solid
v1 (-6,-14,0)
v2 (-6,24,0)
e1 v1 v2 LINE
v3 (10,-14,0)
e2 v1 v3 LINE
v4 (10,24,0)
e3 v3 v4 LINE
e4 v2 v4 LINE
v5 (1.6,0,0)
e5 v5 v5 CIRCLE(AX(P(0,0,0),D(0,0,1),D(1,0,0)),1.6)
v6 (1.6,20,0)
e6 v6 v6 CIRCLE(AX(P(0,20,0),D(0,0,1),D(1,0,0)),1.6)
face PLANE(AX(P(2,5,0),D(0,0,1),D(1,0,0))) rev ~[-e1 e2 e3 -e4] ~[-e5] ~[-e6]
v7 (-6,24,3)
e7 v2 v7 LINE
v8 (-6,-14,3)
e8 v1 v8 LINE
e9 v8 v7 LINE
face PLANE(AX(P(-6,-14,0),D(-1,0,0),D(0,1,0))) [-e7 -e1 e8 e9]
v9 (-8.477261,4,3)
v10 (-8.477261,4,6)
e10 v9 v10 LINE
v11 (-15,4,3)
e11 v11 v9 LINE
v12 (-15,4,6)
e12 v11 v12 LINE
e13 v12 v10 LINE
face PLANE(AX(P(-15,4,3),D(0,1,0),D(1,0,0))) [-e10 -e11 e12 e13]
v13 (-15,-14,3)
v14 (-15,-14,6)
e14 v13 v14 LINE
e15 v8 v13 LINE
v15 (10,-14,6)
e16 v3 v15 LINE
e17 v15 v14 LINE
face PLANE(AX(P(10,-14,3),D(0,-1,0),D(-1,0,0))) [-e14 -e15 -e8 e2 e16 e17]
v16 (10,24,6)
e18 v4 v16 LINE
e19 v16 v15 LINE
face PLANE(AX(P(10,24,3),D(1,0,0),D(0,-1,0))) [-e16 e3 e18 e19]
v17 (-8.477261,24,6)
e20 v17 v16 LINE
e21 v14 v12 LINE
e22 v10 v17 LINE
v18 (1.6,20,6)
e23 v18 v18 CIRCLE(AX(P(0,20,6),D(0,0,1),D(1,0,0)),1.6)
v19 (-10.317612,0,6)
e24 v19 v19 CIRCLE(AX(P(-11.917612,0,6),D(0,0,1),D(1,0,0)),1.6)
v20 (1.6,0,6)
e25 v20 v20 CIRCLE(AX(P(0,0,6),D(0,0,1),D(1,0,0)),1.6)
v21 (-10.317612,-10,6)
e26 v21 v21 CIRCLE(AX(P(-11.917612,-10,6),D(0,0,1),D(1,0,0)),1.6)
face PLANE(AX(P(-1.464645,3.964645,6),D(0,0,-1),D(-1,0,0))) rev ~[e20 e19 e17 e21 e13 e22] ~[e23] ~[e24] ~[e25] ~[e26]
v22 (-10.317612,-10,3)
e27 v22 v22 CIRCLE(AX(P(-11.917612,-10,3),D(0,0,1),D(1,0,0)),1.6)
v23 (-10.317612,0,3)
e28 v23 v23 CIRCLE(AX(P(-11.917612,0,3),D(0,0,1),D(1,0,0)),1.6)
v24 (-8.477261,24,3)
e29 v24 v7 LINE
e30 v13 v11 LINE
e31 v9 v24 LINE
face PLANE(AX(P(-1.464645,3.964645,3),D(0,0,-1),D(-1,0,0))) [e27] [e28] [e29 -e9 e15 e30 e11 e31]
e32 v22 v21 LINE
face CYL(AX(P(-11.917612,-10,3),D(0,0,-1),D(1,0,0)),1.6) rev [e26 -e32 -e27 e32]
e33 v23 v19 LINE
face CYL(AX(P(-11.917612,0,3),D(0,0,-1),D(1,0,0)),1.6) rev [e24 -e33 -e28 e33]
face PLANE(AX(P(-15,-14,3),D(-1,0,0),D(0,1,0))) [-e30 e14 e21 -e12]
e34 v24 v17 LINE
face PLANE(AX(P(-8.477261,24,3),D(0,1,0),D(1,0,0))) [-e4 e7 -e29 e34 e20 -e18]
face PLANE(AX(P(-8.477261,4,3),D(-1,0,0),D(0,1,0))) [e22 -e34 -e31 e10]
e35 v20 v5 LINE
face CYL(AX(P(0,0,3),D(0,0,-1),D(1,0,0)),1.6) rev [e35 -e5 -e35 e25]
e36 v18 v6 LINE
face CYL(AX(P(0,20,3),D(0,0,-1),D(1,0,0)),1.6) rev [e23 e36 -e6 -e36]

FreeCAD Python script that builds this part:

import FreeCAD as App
import Part
import Sketcher
from FreeCAD import Vector
Q = App.Units.Quantity


def add_polygon(sketch, points):
    """Adds a closed chain of lines whose ends are joined by coincident constraints."""
    first, n = sketch.GeometryCount, len(points)
    for a, b in zip(points, points[1:] + points[:1]):
        sketch.addGeometry(Part.LineSegment(App.Vector(*a, 0), App.Vector(*b, 0)), False)
    for i in range(n):
        sketch.addConstraint(Sketcher.Constraint("Coincident", first + i, 2, first + (i + 1) % n, 1))

doc = App.newDocument("Part")
body = doc.addObject("PartDesign::Body", "Body")

sketch1 = body.newObject("Sketcher::SketchObject", "Sketch")
sketch1.AttachmentSupport = (doc.getObject("XY_Plane"), [""])
sketch1.MapMode = "FlatFace"
add_polygon(sketch1, [(-6, 24), (-6, -14), (10, -14), (10, 24)])
sketch1.addGeometry(Part.Circle(Vector(0, 0, 0), Vector(0, 0, 1), 1.6), False)
sketch1.addGeometry(Part.Circle(Vector(0, 20, 0), Vector(0, 0, 1), 1.6), False)
sketch1.addConstraint(Sketcher.Constraint("Vertical", 0))
sketch1.addConstraint(Sketcher.Constraint("Horizontal", 1))
sketch1.addConstraint(Sketcher.Constraint("Vertical", 2))
sketch1.addConstraint(Sketcher.Constraint("Horizontal", 3))
sketch1.addConstraint(Sketcher.Constraint("Coincident", 4, 3, -1, 1))
sketch1.addConstraint(Sketcher.Constraint("Equal", 4, 5))
sketch1.addConstraint(Sketcher.Constraint("PointOnObject", 5, 3, -2))
sketch1.addConstraint(Sketcher.Constraint("Diameter", 4, Q("3.2 mm")))
sketch1.addConstraint(Sketcher.Constraint("DistanceX", 1, 1, 1, 2, Q("16 mm")))
sketch1.addConstraint(Sketcher.Constraint("DistanceY", 0, 2, 0, 1, Q("38 mm")))
sketch1.addConstraint(Sketcher.Constraint("DistanceY", -1, 1, 5, 3, Q("20 mm")))
sketch1.addConstraint(Sketcher.Constraint("DistanceX", 0, 2, -1, 1, Q("6 mm")))
sketch1.addConstraint(Sketcher.Constraint("DistanceY", 0, 2, -1, 1, Q("14 mm")))
pad1 = body.newObject("PartDesign::Pad", "Pad")
pad1.Profile = sketch1
pad1.Length = 3

sketch2 = body.newObject("Sketcher::SketchObject", "Sketch001")
sketch2.AttachmentSupport = (doc.getObject("XY_Plane"), [""])
sketch2.MapMode = "FlatFace"
sketch2.AttachmentOffset = App.Placement(Vector(0, 0, 3), App.Rotation())
add_polygon(sketch2, [(-15, 4), (-15, -14), (10, -14), (10, 24), (-8.5, 24), (-8.5, 4)])
sketch2.addGeometry(Part.Circle(Vector(0, 0, 0), Vector(0, 0, 1), 1.6), False)
sketch2.addGeometry(Part.Circle(Vector(-11.9, -10, 0), Vector(0, 0, 1), 1.6), False)
sketch2.addGeometry(Part.Circle(Vector(-11.9, 0, 0), Vector(0, 0, 1), 1.6), False)
sketch2.addGeometry(Part.Circle(Vector(0, 20, 0), Vector(0, 0, 1), 1.6), False)
sketch2.addConstraint(Sketcher.Constraint("Vertical", 0))
sketch2.addConstraint(Sketcher.Constraint("Horizontal", 1))
sketch2.addConstraint(Sketcher.Constraint("Vertical", 2))
sketch2.addConstraint(Sketcher.Constraint("Horizontal", 3))
sketch2.addConstraint(Sketcher.Constraint("Vertical", 4))
sketch2.addConstraint(Sketcher.Constraint("Horizontal", 5))
sketch2.addConstraint(Sketcher.Constraint("Coincident", 6, 3, -1, 1))
sketch2.addConstraint(Sketcher.Constraint("Equal", 6, 7))
sketch2.addConstraint(Sketcher.Constraint("Equal", 7, 8))
sketch2.addConstraint(Sketcher.Constraint("Equal", 8, 9))
sketch2.addConstraint(Sketcher.Constraint("PointOnObject", 8, 3, -1))
sketch2.addConstraint(Sketcher.Constraint("PointOnObject", 9, 3, -2))
sketch2.addConstraint(Sketcher.Constraint("Vertical", 7, 3, 8, 3))
sketch2.addConstraint(Sketcher.Constraint("Diameter", 6, Q("3.2 mm")))
sketch2.addConstraint(Sketcher.Constraint("DistanceX", 1, 1, 1, 2, Q("25 mm")))
sketch2.addConstraint(Sketcher.Constraint("DistanceY", 0, 2, 0, 1, Q("18 mm")))
sketch2.addConstraint(Sketcher.Constraint("DistanceY", 2, 1, 2, 2, Q("38 mm")))
sketch2.addConstraint(Sketcher.Constraint("DistanceY", 7, 3, -1, 1, Q("10 mm")))
sketch2.addConstraint(Sketcher.Constraint("DistanceY", -1, 1, 9, 3, Q("20 mm")))
sketch2.addConstraint(Sketcher.Constraint("DistanceX", 0, 2, -1, 1, Q("15 mm")))
sketch2.addConstraint(Sketcher.Constraint("DistanceY", 0, 2, -1, 1, Q("14 mm")))
sketch2.addConstraint(Sketcher.Constraint("DistanceX", 3, 2, 3, 1, Q("18.477261 mm")))
sketch2.addConstraint(Sketcher.Constraint("DistanceX", 7, 3, 1, 2, Q("21.917612 mm")))
pad2 = body.newObject("PartDesign::Pad", "Pad001")
pad2.Profile = sketch2
pad2.Length = 3

doc.recompute()
